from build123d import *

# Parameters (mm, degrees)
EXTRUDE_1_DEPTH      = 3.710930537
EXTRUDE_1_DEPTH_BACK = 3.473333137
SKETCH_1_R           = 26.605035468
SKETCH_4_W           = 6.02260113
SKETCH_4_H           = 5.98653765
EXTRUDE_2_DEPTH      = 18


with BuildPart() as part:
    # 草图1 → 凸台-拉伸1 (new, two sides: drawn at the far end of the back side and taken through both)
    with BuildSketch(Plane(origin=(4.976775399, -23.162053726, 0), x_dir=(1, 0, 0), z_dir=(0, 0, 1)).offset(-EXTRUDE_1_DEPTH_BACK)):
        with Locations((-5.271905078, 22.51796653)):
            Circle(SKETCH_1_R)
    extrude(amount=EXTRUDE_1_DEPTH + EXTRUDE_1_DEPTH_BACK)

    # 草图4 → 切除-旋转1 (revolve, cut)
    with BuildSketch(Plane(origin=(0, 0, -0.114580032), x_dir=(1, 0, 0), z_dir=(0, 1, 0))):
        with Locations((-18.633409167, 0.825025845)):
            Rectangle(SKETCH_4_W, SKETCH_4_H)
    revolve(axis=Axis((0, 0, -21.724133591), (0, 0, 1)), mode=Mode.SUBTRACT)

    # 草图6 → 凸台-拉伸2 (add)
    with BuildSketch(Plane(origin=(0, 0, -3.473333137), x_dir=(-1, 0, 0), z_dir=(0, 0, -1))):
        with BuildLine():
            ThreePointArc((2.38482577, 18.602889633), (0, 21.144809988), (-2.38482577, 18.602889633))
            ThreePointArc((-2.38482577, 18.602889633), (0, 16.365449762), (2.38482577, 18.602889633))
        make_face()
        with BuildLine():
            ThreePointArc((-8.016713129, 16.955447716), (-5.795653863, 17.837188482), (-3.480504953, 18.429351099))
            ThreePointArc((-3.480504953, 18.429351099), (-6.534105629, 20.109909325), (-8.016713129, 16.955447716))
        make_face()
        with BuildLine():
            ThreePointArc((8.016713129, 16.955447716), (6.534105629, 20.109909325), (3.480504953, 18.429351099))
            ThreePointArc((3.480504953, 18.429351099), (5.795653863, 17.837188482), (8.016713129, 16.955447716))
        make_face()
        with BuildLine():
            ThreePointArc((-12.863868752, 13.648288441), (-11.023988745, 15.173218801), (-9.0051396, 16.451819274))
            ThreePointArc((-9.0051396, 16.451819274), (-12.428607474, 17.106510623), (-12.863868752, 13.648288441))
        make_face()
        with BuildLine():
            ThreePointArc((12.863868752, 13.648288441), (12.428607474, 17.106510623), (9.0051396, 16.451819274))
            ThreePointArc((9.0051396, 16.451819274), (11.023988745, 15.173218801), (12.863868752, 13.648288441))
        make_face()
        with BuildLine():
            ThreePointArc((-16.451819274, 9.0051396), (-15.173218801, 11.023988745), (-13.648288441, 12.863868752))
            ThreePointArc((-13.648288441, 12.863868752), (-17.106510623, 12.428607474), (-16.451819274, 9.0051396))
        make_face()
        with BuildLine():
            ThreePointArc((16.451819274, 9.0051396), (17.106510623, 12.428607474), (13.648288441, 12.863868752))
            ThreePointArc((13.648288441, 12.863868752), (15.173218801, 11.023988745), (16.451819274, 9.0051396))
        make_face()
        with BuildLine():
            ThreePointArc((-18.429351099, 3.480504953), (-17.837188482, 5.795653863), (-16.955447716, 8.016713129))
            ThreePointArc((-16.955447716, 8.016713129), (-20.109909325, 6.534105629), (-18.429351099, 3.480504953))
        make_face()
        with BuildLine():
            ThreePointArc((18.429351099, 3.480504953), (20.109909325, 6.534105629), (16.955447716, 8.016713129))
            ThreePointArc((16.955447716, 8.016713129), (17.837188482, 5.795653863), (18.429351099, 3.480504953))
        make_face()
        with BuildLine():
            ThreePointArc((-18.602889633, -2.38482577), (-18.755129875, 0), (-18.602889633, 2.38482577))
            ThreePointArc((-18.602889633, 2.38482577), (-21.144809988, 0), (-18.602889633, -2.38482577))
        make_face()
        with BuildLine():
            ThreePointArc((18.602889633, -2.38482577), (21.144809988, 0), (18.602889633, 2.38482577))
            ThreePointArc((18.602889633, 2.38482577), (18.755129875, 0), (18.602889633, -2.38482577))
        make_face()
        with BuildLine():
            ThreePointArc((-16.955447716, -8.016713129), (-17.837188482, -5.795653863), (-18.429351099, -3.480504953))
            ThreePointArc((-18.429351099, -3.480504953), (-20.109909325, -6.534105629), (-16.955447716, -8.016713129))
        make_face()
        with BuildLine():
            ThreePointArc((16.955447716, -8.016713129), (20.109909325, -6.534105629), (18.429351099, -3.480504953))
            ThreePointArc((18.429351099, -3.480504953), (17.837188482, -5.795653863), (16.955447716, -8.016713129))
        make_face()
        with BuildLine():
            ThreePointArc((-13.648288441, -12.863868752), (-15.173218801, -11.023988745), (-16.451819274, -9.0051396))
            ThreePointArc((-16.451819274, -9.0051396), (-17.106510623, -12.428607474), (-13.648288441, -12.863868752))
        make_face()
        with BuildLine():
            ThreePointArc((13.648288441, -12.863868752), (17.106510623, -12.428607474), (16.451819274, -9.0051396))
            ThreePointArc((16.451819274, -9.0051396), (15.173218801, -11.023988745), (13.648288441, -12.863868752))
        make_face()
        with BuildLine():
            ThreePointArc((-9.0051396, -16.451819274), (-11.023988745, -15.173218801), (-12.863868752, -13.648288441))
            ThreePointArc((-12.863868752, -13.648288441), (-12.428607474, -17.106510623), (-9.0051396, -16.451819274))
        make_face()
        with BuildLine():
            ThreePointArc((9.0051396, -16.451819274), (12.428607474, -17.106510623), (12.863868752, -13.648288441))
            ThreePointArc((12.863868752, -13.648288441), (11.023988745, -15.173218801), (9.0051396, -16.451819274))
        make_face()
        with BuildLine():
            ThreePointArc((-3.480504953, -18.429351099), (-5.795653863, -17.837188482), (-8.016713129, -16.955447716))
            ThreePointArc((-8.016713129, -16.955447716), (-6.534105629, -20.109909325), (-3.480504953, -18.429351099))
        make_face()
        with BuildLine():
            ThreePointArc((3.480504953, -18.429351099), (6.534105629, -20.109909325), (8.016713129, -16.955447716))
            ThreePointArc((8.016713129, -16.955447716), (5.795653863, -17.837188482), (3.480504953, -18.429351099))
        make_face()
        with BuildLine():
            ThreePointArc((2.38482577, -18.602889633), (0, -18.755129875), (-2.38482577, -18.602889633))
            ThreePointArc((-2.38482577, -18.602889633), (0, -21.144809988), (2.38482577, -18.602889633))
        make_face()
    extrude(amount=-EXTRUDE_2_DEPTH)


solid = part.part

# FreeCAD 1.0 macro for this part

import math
import FreeCAD as App
import Part
import Sketcher
from FreeCAD import Vector


def add_polygon(sketch, points):
    """Adds a closed chain of lines whose ends are joined by coincident constraints."""
    first, n = sketch.GeometryCount, len(points)
    for a, b in zip(points, points[1:] + points[:1]):
        sketch.addGeometry(Part.LineSegment(App.Vector(*a, 0), App.Vector(*b, 0)), False)
    for i in range(n):
        sketch.addConstraint(Sketcher.Constraint("Coincident", first + i, 2, first + (i + 1) % n, 1))

doc = App.newDocument("Part")
params = doc.addObject("Spreadsheet::Sheet", "Params")
for row, (alias, value) in enumerate([
    ("pad1_length", "3.710931 mm"),
    ("pad1_length2", "3.473333 mm"),
    ("groove_angle", "360 deg"),
    ("pad2_length", "18 mm"),
], start=1):
    params.set(f"A{row}", alias)
    params.set(f"B{row}", "=" + value)
    params.setAlias(f"B{row}", alias)

body = doc.addObject("PartDesign::Body", "Body")

# Sketch on XY plane
sketch1 = body.newObject("Sketcher::SketchObject", "Sketch")
sketch1.AttachmentSupport = (doc.getObject("XY_Plane"), [""])
sketch1.MapMode = "FlatFace"
sketch1.addGeometry(Part.Circle(Vector(-0.29513, -0.644087, 0), Vector(0, 0, 1), 26.605035), False)
sketch1.addConstraint([
    Sketcher.Constraint("Diameter", 0, 53.210071),
    Sketcher.Constraint("DistanceX", 0, 3, -1, 1, 0.29513),
    Sketcher.Constraint("DistanceY", 0, 3, -1, 1, 0.644087),
])
pad1 = body.newObject("PartDesign::Pad", "Pad")
pad1.Profile = sketch1
pad1.Type = "TwoLengths"
pad1.setExpression("Length", "Params.pad1_length")
pad1.setExpression("Length2", "Params.pad1_length2")

# Sketch on XZ plane
sketch2 = body.newObject("Sketcher::SketchObject", "Sketch001")
sketch2.AttachmentSupport = (doc.getObject("XZ_Plane"), [""])
sketch2.MapMode = "FlatFace"
add_polygon(sketch2, [(-21.64471, -3.932875), (-21.64471, 2.053663), (-15.622109, 2.053663), (-15.622109, -3.932875)])  # lines 0-3
sketch2.addConstraint([
    Sketcher.Constraint("Vertical", 0),
    Sketcher.Constraint("Horizontal", 1),
    Sketcher.Constraint("Vertical", 2),
    Sketcher.Constraint("Horizontal", 3),
    Sketcher.Constraint("DistanceX", 1, 1, 1, 2, 6.022601),
    Sketcher.Constraint("DistanceY", 0, 1, 0, 2, 5.986538),
    Sketcher.Constraint("DistanceX", 0, 2, -1, 1, 21.64471),
    Sketcher.Constraint("DistanceY", -1, 1, 0, 2, 2.053663),
])
groove = body.newObject("PartDesign::Groove", "Groove")
groove.Profile = sketch2
groove.ReferenceAxis = (sketch2, ["V_Axis"])
groove.setExpression("Angle", "Params.groove_angle")

# Sketch on XY plane
sketch3 = body.newObject("Sketcher::SketchObject", "Sketch002")
sketch3.AttachmentSupport = (doc.getObject("XY_Plane"), [""])
sketch3.MapMode = "FlatFace"
sketch3.AttachmentOffset = App.Placement(Vector(0, 0, -3.473333), App.Rotation())
sketch3.addGeometry([
    Part.ArcOfCircle(Part.Circle(Vector(0, 18.75513, 0), Vector(0, 0, 1), 2.38968), math.radians(-3.652637), math.radians(183.652637)),  # 0
    Part.ArcOfCircle(Part.Circle(Vector(0, 18.75513, 0), Vector(0, 0, 1), 2.38968), math.radians(-176.347363), math.radians(-3.652637)),  # 1
    Part.ArcOfCircle(Part.Circle(Vector(0, 0, 0), Vector(0, 0, 1), 18.75513), math.radians(64.694726), math.radians(79.305274)),  # 2
    Part.ArcOfCircle(Part.Circle(Vector(5.795654, 17.837188, 0), Vector(0, 0, 1), 2.38968), math.radians(-21.652637), math.radians(165.652637)),  # 3
    Part.ArcOfCircle(Part.Circle(Vector(-5.795654, 17.837188, 0), Vector(0, 0, 1), 2.38968), math.radians(14.347363), math.radians(201.652637)),  # 4
    Part.ArcOfCircle(Part.Circle(Vector(0, 0, 0), Vector(0, 0, 1), 18.75513), math.radians(100.694726), math.radians(115.305274)),  # 5
    Part.ArcOfCircle(Part.Circle(Vector(0, 0, 0), Vector(0, 0, 1), 18.75513), math.radians(46.694726), math.radians(61.305274)),  # 6
    Part.ArcOfCircle(Part.Circle(Vector(11.023989, 15.173219, 0), Vector(0, 0, 1), 2.38968), math.radians(-39.652637), math.radians(147.652637)),  # 7
    Part.ArcOfCircle(Part.Circle(Vector(-11.023989, 15.173219, 0), Vector(0, 0, 1), 2.38968), math.radians(32.347363), math.radians(219.652637)),  # 8
    Part.ArcOfCircle(Part.Circle(Vector(0, 0, 0), Vector(0, 0, 1), 18.75513), math.radians(118.694726), math.radians(133.305274)),  # 9
    Part.ArcOfCircle(Part.Circle(Vector(0, 0, 0), Vector(0, 0, 1), 18.75513), math.radians(28.694726), math.radians(43.305274)),  # 10
    Part.ArcOfCircle(Part.Circle(Vector(15.173219, 11.023989, 0), Vector(0, 0, 1), 2.38968), math.radians(-57.652637), math.radians(129.652637)),  # 11
    Part.ArcOfCircle(Part.Circle(Vector(-15.173219, 11.023989, 0), Vector(0, 0, 1), 2.38968), math.radians(50.347363), math.radians(237.652637)),  # 12
    Part.ArcOfCircle(Part.Circle(Vector(0, 0, 0), Vector(0, 0, 1), 18.75513), math.radians(136.694726), math.radians(151.305274)),  # 13
    Part.ArcOfCircle(Part.Circle(Vector(0, 0, 0), Vector(0, 0, 1), 18.75513), math.radians(10.694726), math.radians(25.305274)),  # 14
    Part.ArcOfCircle(Part.Circle(Vector(17.837188, 5.795654, 0), Vector(0, 0, 1), 2.38968), math.radians(-75.652637), math.radians(111.652637)),  # 15
    Part.ArcOfCircle(Part.Circle(Vector(-17.837188, 5.795654, 0), Vector(0, 0, 1), 2.38968), math.radians(68.347363), math.radians(255.652637)),  # 16
    Part.ArcOfCircle(Part.Circle(Vector(0, 0, 0), Vector(0, 0, 1), 18.75513), math.radians(154.694726), math.radians(169.305274)),  # 17
    Part.ArcOfCircle(Part.Circle(Vector(0, 0, 0), Vector(0, 0, 1), 18.75513), math.radians(-7.305274), math.radians(7.305274)),  # 18
    Part.ArcOfCircle(Part.Circle(Vector(18.75513, 0, 0), Vector(0, 0, 1), 2.38968), math.radians(-93.652637), math.radians(93.652637)),  # 19
    Part.ArcOfCircle(Part.Circle(Vector(-18.75513, 0, 0), Vector(0, 0, 1), 2.38968), math.radians(86.347363), math.radians(273.652637)),  # 20
    Part.ArcOfCircle(Part.Circle(Vector(0, 0, 0), Vector(0, 0, 1), 18.75513), math.radians(172.694726), math.radians(187.305274)),  # 21
    Part.ArcOfCircle(Part.Circle(Vector(0, 0, 0), Vector(0, 0, 1), 18.75513), math.radians(-25.305274), math.radians(-10.694726)),  # 22
    Part.ArcOfCircle(Part.Circle(Vector(17.837188, -5.795654, 0), Vector(0, 0, 1), 2.38968), math.radians(-111.652637), math.radians(75.652637)),  # 23
    Part.ArcOfCircle(Part.Circle(Vector(-17.837188, -5.795654, 0), Vector(0, 0, 1), 2.38968), math.radians(104.347363), math.radians(291.652637)),  # 24
    Part.ArcOfCircle(Part.Circle(Vector(0, 0, 0), Vector(0, 0, 1), 18.75513), math.radians(-169.305274), math.radians(-154.694726)),  # 25
    Part.ArcOfCircle(Part.Circle(Vector(0, 0, 0), Vector(0, 0, 1), 18.75513), math.radians(-43.305274), math.radians(-28.694726)),  # 26
    Part.ArcOfCircle(Part.Circle(Vector(15.173219, -11.023989, 0), Vector(0, 0, 1), 2.38968), math.radians(-129.652637), math.radians(57.652637)),  # 27
    Part.ArcOfCircle(Part.Circle(Vector(-15.173219, -11.023989, 0), Vector(0, 0, 1), 2.38968), math.radians(122.347363), math.radians(309.652637)),  # 28
    Part.ArcOfCircle(Part.Circle(Vector(0, 0, 0), Vector(0, 0, 1), 18.75513), math.radians(-151.305274), math.radians(-136.694726)),  # 29
    Part.ArcOfCircle(Part.Circle(Vector(0, 0, 0), Vector(0, 0, 1), 18.75513), math.radians(-61.305274), math.radians(-46.694726)),  # 30
    Part.ArcOfCircle(Part.Circle(Vector(11.023989, -15.173219, 0), Vector(0, 0, 1), 2.38968), math.radians(-147.652637), math.radians(39.652637)),  # 31
    Part.ArcOfCircle(Part.Circle(Vector(-11.023989, -15.173219, 0), Vector(0, 0, 1), 2.38968), math.radians(140.347363), math.radians(327.652637)),  # 32
    Part.ArcOfCircle(Part.Circle(Vector(0, 0, 0), Vector(0, 0, 1), 18.75513), math.radians(-133.305274), math.radians(-118.694726)),  # 33
    Part.ArcOfCircle(Part.Circle(Vector(0, 0, 0), Vector(0, 0, 1), 18.75513), math.radians(-79.305274), math.radians(-64.694726)),  # 34
    Part.ArcOfCircle(Part.Circle(Vector(5.795654, -17.837188, 0), Vector(0, 0, 1), 2.38968), math.radians(-165.652637), math.radians(21.652637)),  # 35
    Part.ArcOfCircle(Part.Circle(Vector(-5.795654, -17.837188, 0), Vector(0, 0, 1), 2.38968), math.radians(158.347363), math.radians(345.652637)),  # 36
    Part.ArcOfCircle(Part.Circle(Vector(0, 0, 0), Vector(0, 0, 1), 18.75513), math.radians(-115.305274), math.radians(-100.694726)),  # 37
    Part.ArcOfCircle(Part.Circle(Vector(0, 0, 0), Vector(0, 0, 1), 18.75513), math.radians(-97.305274), math.radians(-82.694726)),  # 38
    Part.ArcOfCircle(Part.Circle(Vector(0, -18.75513, 0), Vector(0, 0, 1), 2.38968), math.radians(176.347363), math.radians(363.652637)),  # 39
], False)
sketch3.addConstraint([
    Sketcher.Constraint("Tangent", 0, 1, 1, 2),
    Sketcher.Constraint("Coincident", 1, 1, 0, 2),
    Sketcher.Constraint("Coincident", 2, 1, 3, 1),
    Sketcher.Constraint("Coincident", 3, 2, 2, 2),
    Sketcher.Constraint("Coincident", 4, 1, 5, 1),
    Sketcher.Constraint("Coincident", 5, 2, 4, 2),
    Sketcher.Constraint("Coincident", 6, 1, 7, 1),
    Sketcher.Constraint("Coincident", 7, 2, 6, 2),
    Sketcher.Constraint("Coincident", 8, 1, 9, 1),
    Sketcher.Constraint("Coincident", 9, 2, 8, 2),
    Sketcher.Constraint("Coincident", 10, 1, 11, 1),
    Sketcher.Constraint("Coincident", 11, 2, 10, 2),
    Sketcher.Constraint("Coincident", 12, 1, 13, 1),
    Sketcher.Constraint("Coincident", 13, 2, 12, 2),
    Sketcher.Constraint("Coincident", 14, 1, 15, 1),
    Sketcher.Constraint("Coincident", 15, 2, 14, 2),
    Sketcher.Constraint("Coincident", 16, 1, 17, 1),
    Sketcher.Constraint("Coincident", 17, 2, 16, 2),
    Sketcher.Constraint("Coincident", 18, 1, 19, 1),
    Sketcher.Constraint("Coincident", 19, 2, 18, 2),
    Sketcher.Constraint("Coincident", 20, 1, 21, 1),
    Sketcher.Constraint("Coincident", 21, 2, 20, 2),
    Sketcher.Constraint("Coincident", 22, 1, 23, 1),
    Sketcher.Constraint("Coincident", 23, 2, 22, 2),
    Sketcher.Constraint("Coincident", 24, 1, 25, 1),
    Sketcher.Constraint("Coincident", 25, 2, 24, 2),
    Sketcher.Constraint("Coincident", 26, 1, 27, 1),
    Sketcher.Constraint("Coincident", 27, 2, 26, 2),
    Sketcher.Constraint("Coincident", 28, 1, 29, 1),
    Sketcher.Constraint("Coincident", 29, 2, 28, 2),
    Sketcher.Constraint("Coincident", 30, 1, 31, 1),
    Sketcher.Constraint("Coincident", 31, 2, 30, 2),
    Sketcher.Constraint("Coincident", 32, 1, 33, 1),
    Sketcher.Constraint("Coincident", 33, 2, 32, 2),
    Sketcher.Constraint("Coincident", 34, 1, 35, 1),
    Sketcher.Constraint("Coincident", 35, 2, 34, 2),
    Sketcher.Constraint("Coincident", 36, 1, 37, 1),
    Sketcher.Constraint("Coincident", 37, 2, 36, 2),
    Sketcher.Constraint("Coincident", 38, 1, 39, 1),
    Sketcher.Constraint("Coincident", 39, 2, 38, 2),
    Sketcher.Constraint("Coincident", 2, 3, -1, 1),
    Sketcher.Constraint("Coincident", 5, 3, -1, 1),
    Sketcher.Constraint("Coincident", 6, 3, -1, 1),
    Sketcher.Constraint("Coincident", 9, 3, -1, 1),
    Sketcher.Constraint("Coincident", 10, 3, -1, 1),
    Sketcher.Constraint("Coincident", 13, 3, -1, 1),
    Sketcher.Constraint("Coincident", 14, 3, -1, 1),
    Sketcher.Constraint("Coincident", 17, 3, -1, 1),
    Sketcher.Constraint("Coincident", 18, 3, -1, 1),
    Sketcher.Constraint("Coincident", 21, 3, -1, 1),
    Sketcher.Constraint("Coincident", 22, 3, -1, 1),
    Sketcher.Constraint("Coincident", 25, 3, -1, 1),
    Sketcher.Constraint("Coincident", 26, 3, -1, 1),
    Sketcher.Constraint("Coincident", 29, 3, -1, 1),
    Sketcher.Constraint("Coincident", 30, 3, -1, 1),
    Sketcher.Constraint("Coincident", 33, 3, -1, 1),
    Sketcher.Constraint("Coincident", 34, 3, -1, 1),
    Sketcher.Constraint("Coincident", 37, 3, -1, 1),
    Sketcher.Constraint("Coincident", 38, 3, -1, 1),
    Sketcher.Constraint("Equal", 1, 3),
    Sketcher.Constraint("Equal", 3, 4),
    Sketcher.Constraint("Equal", 2, 5),
    Sketcher.Constraint("Equal", 5, 6),
    Sketcher.Constraint("Equal", 4, 7),
    Sketcher.Constraint("Equal", 7, 8),
    Sketcher.Constraint("Equal", 6, 9),
    Sketcher.Constraint("Equal", 9, 10),
    Sketcher.Constraint("Equal", 8, 11),
    Sketcher.Constraint("Equal", 11, 12),
    Sketcher.Constraint("Equal", 10, 13),
    Sketcher.Constraint("Equal", 13, 14),
    Sketcher.Constraint("Equal", 12, 15),
    Sketcher.Constraint("Equal", 15, 16),
    Sketcher.Constraint("Equal", 14, 17),
    Sketcher.Constraint("Equal", 17, 18),
    Sketcher.Constraint("Equal", 16, 19),
    Sketcher.Constraint("Equal", 19, 20),
    Sketcher.Constraint("Equal", 18, 21),
    Sketcher.Constraint("Equal", 21, 22),
    Sketcher.Constraint("Equal", 20, 23),
    Sketcher.Constraint("Equal", 23, 24),
    Sketcher.Constraint("Equal", 22, 25),
    Sketcher.Constraint("Equal", 25, 26),
    Sketcher.Constraint("Equal", 24, 27),
    Sketcher.Constraint("Equal", 27, 28),
    Sketcher.Constraint("Equal", 26, 29),
    Sketcher.Constraint("Equal", 29, 30),
    Sketcher.Constraint("Equal", 28, 31),
    Sketcher.Constraint("Equal", 31, 32),
    Sketcher.Constraint("Equal", 30, 33),
    Sketcher.Constraint("Equal", 33, 34),
    Sketcher.Constraint("Equal", 32, 35),
    Sketcher.Constraint("Equal", 35, 36),
    Sketcher.Constraint("Equal", 34, 37),
    Sketcher.Constraint("Equal", 37, 38),
    Sketcher.Constraint("Equal", 36, 39),
    Sketcher.Constraint("Symmetric", 19, 3, 20, 3, -1, 1),
    Sketcher.Constraint("Symmetric", 16, 3, 23, 3, -1, 1),
    Sketcher.Constraint("Symmetric", 15, 3, 24, 3, -1, 1),
    Sketcher.Constraint("Symmetric", 12, 3, 27, 3, -1, 1),
    Sketcher.Constraint("Symmetric", 11, 3, 28, 3, -1, 1),
    Sketcher.Constraint("Symmetric", 8, 3, 31, 3, -1, 1),
    Sketcher.Constraint("Symmetric", 7, 3, 32, 3, -1, 1),
    Sketcher.Constraint("Symmetric", 4, 3, 35, 3, -1, 1),
    Sketcher.Constraint("Symmetric", 3, 3, 36, 3, -1, 1),
    Sketcher.Constraint("Symmetric", 0, 3, 39, 3, -1, 1),
    Sketcher.Constraint("Symmetric", 3, 3, 4, 3, -2),
    Sketcher.Constraint("Symmetric", 7, 3, 8, 3, -2),
    Sketcher.Constraint("Symmetric", 11, 3, 12, 3, -2),
    Sketcher.Constraint("Symmetric", 15, 3, 16, 3, -2),
    Sketcher.Constraint("Symmetric", 0, 1, 1, 1, -2),
    Sketcher.Constraint("PointOnObject", 19, 3, -1),
    Sketcher.Constraint("Vertical", 1, 1, 38, 1),
    Sketcher.Constraint("Radius", 0, 2.38968),
    Sketcher.Constraint("Radius", 2, 18.75513),
    Sketcher.Constraint("DistanceY", -1, 1, 0, 3, 18.75513),
    Sketcher.Constraint("DistanceY", -1, 1, 3, 3, 17.837188),
    Sketcher.Constraint("DistanceX", -1, 1, 7, 3, 11.023989),
    Sketcher.Constraint("DistanceY", -1, 1, 7, 3, 15.173219),
    Sketcher.Constraint("DistanceX", -1, 1, 11, 3, 15.173219),
    Sketcher.Constraint("DistanceY", -1, 1, 11, 3, 11.023989),
    Sketcher.Constraint("DistanceX", -1, 1, 15, 3, 17.837188),
    Sketcher.Constraint("DistanceX", -1, 1, 19, 3, 18.75513),
    Sketcher.Constraint("DistanceY", -1, 1, 3, 2, 18.429351),
    Sketcher.Constraint("DistanceX", -1, 1, 14, 1, 18.429351),
])
pad2 = body.newObject("PartDesign::Pad", "Pad001")
pad2.Profile = sketch3
pad2.setExpression("Length", "Params.pad2_length")

doc.recompute()
